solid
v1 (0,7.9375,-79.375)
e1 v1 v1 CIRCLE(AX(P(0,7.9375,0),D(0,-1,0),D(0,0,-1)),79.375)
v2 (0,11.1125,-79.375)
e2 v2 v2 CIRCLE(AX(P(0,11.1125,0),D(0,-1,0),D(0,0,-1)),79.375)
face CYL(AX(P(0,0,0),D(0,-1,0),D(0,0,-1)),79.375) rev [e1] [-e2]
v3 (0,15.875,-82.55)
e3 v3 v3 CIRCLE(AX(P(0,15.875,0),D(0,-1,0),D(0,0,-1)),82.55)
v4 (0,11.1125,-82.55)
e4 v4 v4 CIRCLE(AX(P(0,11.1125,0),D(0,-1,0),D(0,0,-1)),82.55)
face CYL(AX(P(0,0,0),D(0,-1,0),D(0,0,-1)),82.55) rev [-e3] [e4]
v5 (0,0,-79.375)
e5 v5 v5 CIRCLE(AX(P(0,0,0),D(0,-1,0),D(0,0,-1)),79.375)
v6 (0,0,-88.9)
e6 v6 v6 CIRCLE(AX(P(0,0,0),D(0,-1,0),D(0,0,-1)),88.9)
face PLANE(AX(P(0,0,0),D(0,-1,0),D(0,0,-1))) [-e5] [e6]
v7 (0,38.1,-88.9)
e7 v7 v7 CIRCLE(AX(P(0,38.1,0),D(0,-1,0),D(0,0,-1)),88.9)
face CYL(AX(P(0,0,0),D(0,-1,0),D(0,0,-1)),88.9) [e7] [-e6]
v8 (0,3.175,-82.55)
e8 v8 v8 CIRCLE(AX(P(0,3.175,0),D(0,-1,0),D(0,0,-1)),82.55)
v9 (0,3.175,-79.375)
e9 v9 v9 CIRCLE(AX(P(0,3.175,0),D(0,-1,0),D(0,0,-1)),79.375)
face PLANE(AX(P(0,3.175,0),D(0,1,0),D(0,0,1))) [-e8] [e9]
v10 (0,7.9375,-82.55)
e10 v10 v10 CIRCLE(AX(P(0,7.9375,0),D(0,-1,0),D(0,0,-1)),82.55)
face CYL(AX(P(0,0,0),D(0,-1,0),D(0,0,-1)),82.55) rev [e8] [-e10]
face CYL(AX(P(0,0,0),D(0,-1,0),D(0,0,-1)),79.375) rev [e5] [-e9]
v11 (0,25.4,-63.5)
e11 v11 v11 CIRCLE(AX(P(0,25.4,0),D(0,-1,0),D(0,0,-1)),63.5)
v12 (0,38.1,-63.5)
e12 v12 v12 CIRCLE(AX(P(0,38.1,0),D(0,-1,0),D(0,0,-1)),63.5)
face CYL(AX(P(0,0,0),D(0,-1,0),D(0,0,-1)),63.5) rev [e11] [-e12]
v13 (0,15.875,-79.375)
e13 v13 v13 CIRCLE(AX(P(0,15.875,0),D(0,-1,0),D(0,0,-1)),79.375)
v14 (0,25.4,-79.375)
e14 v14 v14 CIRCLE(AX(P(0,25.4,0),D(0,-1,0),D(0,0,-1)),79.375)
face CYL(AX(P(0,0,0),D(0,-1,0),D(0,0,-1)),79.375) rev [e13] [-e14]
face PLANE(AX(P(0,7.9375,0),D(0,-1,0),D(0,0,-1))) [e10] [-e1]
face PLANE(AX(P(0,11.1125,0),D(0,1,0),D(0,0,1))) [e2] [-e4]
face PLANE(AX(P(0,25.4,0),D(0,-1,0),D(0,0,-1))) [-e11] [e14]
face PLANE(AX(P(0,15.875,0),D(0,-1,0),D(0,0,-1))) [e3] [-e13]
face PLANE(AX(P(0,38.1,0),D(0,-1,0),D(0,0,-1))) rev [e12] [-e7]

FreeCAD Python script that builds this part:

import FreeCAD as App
import Part
import Sketcher
from FreeCAD import Vector
Q = App.Units.Quantity

doc = App.newDocument("Part")
body = doc.addObject("PartDesign::Body", "Body")

# Sketch on XY plane
sketch1 = body.newObject("Sketcher::SketchObject", "Sketch")
sketch1.AttachmentSupport = (doc.getObject("XY_Plane"), [""])
sketch1.MapMode = "FlatFace"
sketch1.addGeometry([
    Part.LineSegment(Vector(63.5, 25.4, 0), Vector(79.4, 25.4, 0)),  # 0
    Part.LineSegment(Vector(79.4, 25.4, 0), Vector(79.4, 15.9, 0)),  # 1
    Part.LineSegment(Vector(79.4, 15.9, 0), Vector(82.5, 15.9, 0)),  # 2
    Part.LineSegment(Vector(82.5, 15.9, 0), Vector(82.5, 11.1, 0)),  # 3
    Part.LineSegment(Vector(82.5, 11.1, 0), Vector(79.4, 11.1, 0)),  # 4
    Part.LineSegment(Vector(79.4, 11.1, 0), Vector(79.4, 7.9, 0)),  # 5
    Part.LineSegment(Vector(79.4, 7.9, 0), Vector(82.5, 7.9, 0)),  # 6
    Part.LineSegment(Vector(82.5, 7.9, 0), Vector(82.5, 3.2, 0)),  # 7
    Part.LineSegment(Vector(82.5, 3.2, 0), Vector(79.4, 3.2, 0)),  # 8
    Part.LineSegment(Vector(79.4, 3.2, 0), Vector(79.4, 0, 0)),  # 9
    Part.LineSegment(Vector(79.4, 0, 0), Vector(88.9, 0, 0)),  # 10
    Part.LineSegment(Vector(88.9, 0, 0), Vector(88.9, 38.1, 0)),  # 11
    Part.LineSegment(Vector(88.9, 38.1, 0), Vector(63.5, 38.1, 0)),  # 12
    Part.LineSegment(Vector(63.5, 38.1, 0), Vector(63.5, 25.4, 0)),  # 13
], False)
sketch1.addConstraint([
    Sketcher.Constraint("Coincident", 0, 2, 1, 1),
    Sketcher.Constraint("Coincident", 1, 2, 2, 1),
    Sketcher.Constraint("Coincident", 2, 2, 3, 1),
    Sketcher.Constraint("Coincident", 3, 2, 4, 1),
    Sketcher.Constraint("Coincident", 4, 2, 5, 1),
    Sketcher.Constraint("Coincident", 5, 2, 6, 1),
    Sketcher.Constraint("Coincident", 6, 2, 7, 1),
    Sketcher.Constraint("Coincident", 7, 2, 8, 1),
    Sketcher.Constraint("Coincident", 8, 2, 9, 1),
    Sketcher.Constraint("Coincident", 9, 2, 10, 1),
    Sketcher.Constraint("Coincident", 10, 2, 11, 1),
    Sketcher.Constraint("Coincident", 11, 2, 12, 1),
    Sketcher.Constraint("Coincident", 12, 2, 13, 1),
    Sketcher.Constraint("Coincident", 13, 2, 0, 1),
    Sketcher.Constraint("Horizontal", 0),
    Sketcher.Constraint("Vertical", 1),
    Sketcher.Constraint("Horizontal", 2),
    Sketcher.Constraint("Vertical", 3),
    Sketcher.Constraint("Horizontal", 4),
    Sketcher.Constraint("Vertical", 5),
    Sketcher.Constraint("Horizontal", 6),
    Sketcher.Constraint("Vertical", 7),
    Sketcher.Constraint("Horizontal", 8),
    Sketcher.Constraint("Vertical", 9),
    Sketcher.Constraint("Horizontal", 10),
    Sketcher.Constraint("Vertical", 11),
    Sketcher.Constraint("Horizontal", 12),
    Sketcher.Constraint("Vertical", 13),
    Sketcher.Constraint("PointOnObject", 9, 2, -1),
    Sketcher.Constraint("Vertical", 1, 2, 4, 2),
    Sketcher.Constraint("Vertical", 3, 2, 6, 2),
    Sketcher.Constraint("Vertical", 5, 2, 8, 2),
    Sketcher.Constraint("Equal", 10, 1),
    Sketcher.Constraint("Equal", 8, 5),
    Sketcher.Constraint("Equal", 3, 7),
    Sketcher.Constraint("Equal", 5, 9),
    Sketcher.Constraint("DistanceX", 12, 2, 12, 1, Q("1 in")),
    Sketcher.Constraint("DistanceY", 11, 1, 11, 2, Q("1.5 in")),
    Sketcher.Constraint("DistanceY", 13, 2, 13, 1, Q("0.5 in")),
    Sketcher.Constraint("DistanceX", -1, 1, 10, 2, Q("3.5 in")),
    Sketcher.Constraint("DistanceY", 7, 2, 2, 2, Q("0.5 in")),
    Sketcher.Constraint("DistanceX", 0, 1, 0, 2, Q("0.625 in")),
])
revolution = body.newObject("PartDesign::Revolution", "Revolution")
revolution.Profile = sketch1
revolution.ReferenceAxis = (sketch1, ["V_Axis"])
revolution.Angle = 360

doc.recompute()
